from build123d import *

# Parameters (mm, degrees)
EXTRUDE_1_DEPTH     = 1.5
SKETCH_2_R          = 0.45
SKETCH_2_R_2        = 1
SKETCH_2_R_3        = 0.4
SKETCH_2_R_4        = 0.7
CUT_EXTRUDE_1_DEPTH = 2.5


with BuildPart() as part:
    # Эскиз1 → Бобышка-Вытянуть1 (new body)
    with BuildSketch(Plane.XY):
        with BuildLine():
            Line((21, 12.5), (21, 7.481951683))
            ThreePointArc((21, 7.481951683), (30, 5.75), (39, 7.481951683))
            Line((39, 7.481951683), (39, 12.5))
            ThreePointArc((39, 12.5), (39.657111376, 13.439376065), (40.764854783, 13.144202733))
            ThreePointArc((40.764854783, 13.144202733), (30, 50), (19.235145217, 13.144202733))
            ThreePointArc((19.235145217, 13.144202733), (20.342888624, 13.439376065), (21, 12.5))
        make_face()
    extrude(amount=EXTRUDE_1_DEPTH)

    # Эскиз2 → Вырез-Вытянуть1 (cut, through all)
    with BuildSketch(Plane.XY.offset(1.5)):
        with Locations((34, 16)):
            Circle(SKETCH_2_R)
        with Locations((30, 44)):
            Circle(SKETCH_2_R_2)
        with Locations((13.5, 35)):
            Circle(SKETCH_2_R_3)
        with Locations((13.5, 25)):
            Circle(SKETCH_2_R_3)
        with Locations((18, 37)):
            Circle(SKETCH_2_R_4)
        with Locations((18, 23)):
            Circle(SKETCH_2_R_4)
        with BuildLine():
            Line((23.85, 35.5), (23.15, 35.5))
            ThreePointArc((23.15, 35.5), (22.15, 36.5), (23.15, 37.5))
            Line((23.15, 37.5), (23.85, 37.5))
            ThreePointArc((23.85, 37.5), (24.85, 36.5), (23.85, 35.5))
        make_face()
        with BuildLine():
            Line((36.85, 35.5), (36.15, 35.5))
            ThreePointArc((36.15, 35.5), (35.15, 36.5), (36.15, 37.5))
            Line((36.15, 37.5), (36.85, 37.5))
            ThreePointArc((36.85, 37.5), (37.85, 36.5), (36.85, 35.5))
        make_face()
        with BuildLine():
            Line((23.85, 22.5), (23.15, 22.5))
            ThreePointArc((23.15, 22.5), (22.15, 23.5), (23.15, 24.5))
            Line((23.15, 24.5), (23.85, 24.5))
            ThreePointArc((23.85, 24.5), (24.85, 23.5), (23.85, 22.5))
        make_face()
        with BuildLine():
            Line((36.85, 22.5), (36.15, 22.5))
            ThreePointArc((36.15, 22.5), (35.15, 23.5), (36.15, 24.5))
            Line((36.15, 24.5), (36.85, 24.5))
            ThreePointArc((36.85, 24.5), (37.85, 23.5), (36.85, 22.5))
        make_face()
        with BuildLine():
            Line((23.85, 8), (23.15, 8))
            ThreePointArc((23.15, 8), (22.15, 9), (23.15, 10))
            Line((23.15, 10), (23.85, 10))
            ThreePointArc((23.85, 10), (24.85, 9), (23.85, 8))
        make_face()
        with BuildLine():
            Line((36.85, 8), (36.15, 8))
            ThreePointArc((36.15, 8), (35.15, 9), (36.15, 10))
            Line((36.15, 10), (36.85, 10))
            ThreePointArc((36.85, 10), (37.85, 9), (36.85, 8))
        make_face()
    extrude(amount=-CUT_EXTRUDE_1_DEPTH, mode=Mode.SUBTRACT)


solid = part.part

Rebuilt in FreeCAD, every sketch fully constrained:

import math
import FreeCAD as App
import Part
import Sketcher

V = App.Vector

doc = App.newDocument("Part")
params = doc.addObject("Spreadsheet::Sheet", "Params")
for row, (alias, value) in enumerate([
    ("sketch1_radius", "1 mm"),
    ("sketch1_radius2", "20 mm"),
    ("sketch1_radius3", "24.25 mm"),
    ("pad1_length", "1.5 mm"),
    ("sketch2_diameter", "2 mm"),
    ("sketch2_diameter2", "0.9 mm"),
    ("sketch2_diameter3", "0.8 mm"),
    ("sketch2_diameter4", "1.4 mm"),
    ("sketch2_width", "0.7 mm"),
], start=1):
    params.set(f"A{row}", alias)
    params.set(f"B{row}", "=" + value)
    params.setAlias(f"B{row}", alias)

body = doc.addObject("PartDesign::Body", "Body")

# Sketch on XY plane
sketch1 = body.newObject("Sketcher::SketchObject", "Sketch")
sketch1.AttachmentSupport = (doc.getObject("XY_Plane"), [""])
sketch1.MapMode = "FlatFace"
sketch1.addGeometry(Part.LineSegment(V(21, 12.5, 0), V(21, 7.5, 0)), False)
sketch1.addGeometry(Part.ArcOfCircle(Part.Circle(V(30, 30, 0), V(0, 0, 1), 24.3), math.radians(-112), math.radians(-68)), False)
sketch1.addGeometry(Part.LineSegment(V(39, 7.5, 0), V(39, 12.5, 0)), False)
sketch1.addGeometry(Part.ArcOfCircle(Part.Circle(V(40, 12.5, 0), V(0, 0, 1), 1), math.radians(40), math.radians(180)), False)
sketch1.addGeometry(Part.ArcOfCircle(Part.Circle(V(30, 30, 0), V(0, 0, 1), 20), math.radians(-57), math.radians(237)), False)
sketch1.addGeometry(Part.ArcOfCircle(Part.Circle(V(20, 12.5, 0), V(0, 0, 1), 1), math.radians(0), math.radians(140)), False)
sketch1.addConstraint(Sketcher.Constraint("Coincident", 0, 2, 1, 1))
sketch1.addConstraint(Sketcher.Constraint("Coincident", 1, 2, 2, 1))
sketch1.addConstraint(Sketcher.Constraint("Tangent", 2, 2, 3, 2))
sketch1.addConstraint(Sketcher.Constraint("Coincident", 3, 1, 4, 1))
sketch1.addConstraint(Sketcher.Constraint("Coincident", 4, 2, 5, 2))
sketch1.addConstraint(Sketcher.Constraint("Tangent", 5, 1, 0, 1))
sketch1.addConstraint(Sketcher.Constraint("Vertical", 0))
sketch1.addConstraint(Sketcher.Constraint("Vertical", 2))
sketch1.addConstraint(Sketcher.Constraint("Coincident", 4, 3, 1, 3))
sketch1.addConstraint(Sketcher.Constraint("Equal", 3, 5))
sketch1.addConstraint(Sketcher.Constraint("Horizontal", 3, 3, 5, 3))
sketch1.addConstraint(Sketcher.Constraint("Horizontal", 0, 2, 1, 2))
sketch1.addConstraint(Sketcher.Constraint("Radius", 3, 1.0))
sketch1.addConstraint(Sketcher.Constraint("Radius", 4, 20.0))
sketch1.addConstraint(Sketcher.Constraint("Radius", 1, 24.25))
sketch1.addConstraint(Sketcher.Constraint("DistanceX", -1, 1, 1, 3, 30.0))
sketch1.addConstraint(Sketcher.Constraint("DistanceY", -1, 1, 1, 3, 30.0))
sketch1.addConstraint(Sketcher.Constraint("DistanceX", -1, 1, 3, 3, 40.0))
sketch1.addConstraint(Sketcher.Constraint("DistanceY", -1, 1, 3, 3, 12.5))
sketch1.setExpression("Constraints[12]", "Params.sketch1_radius")
sketch1.setExpression("Constraints[13]", "Params.sketch1_radius2")
sketch1.setExpression("Constraints[14]", "Params.sketch1_radius3")
pad1 = body.newObject("PartDesign::Pad", "Pad")
pad1.Profile = sketch1
pad1.setExpression("Length", "Params.pad1_length")

# Sketch on XY plane
sketch2 = body.newObject("Sketcher::SketchObject", "Sketch001")
sketch2.AttachmentSupport = (doc.getObject("XY_Plane"), [""])
sketch2.MapMode = "FlatFace"
sketch2.AttachmentOffset = App.Placement(V(0, 0, 1.5), App.Rotation())
sketch2.addGeometry(Part.Circle(V(34, 16, 0), V(0, 0, 1), 0.45), False)
sketch2.addGeometry(Part.Circle(V(30, 44, 0), V(0, 0, 1), 1), False)
sketch2.addGeometry(Part.Circle(V(13.5, 35, 0), V(0, 0, 1), 0.4), False)
sketch2.addGeometry(Part.Circle(V(13.5, 25, 0), V(0, 0, 1), 0.4), False)
sketch2.addGeometry(Part.Circle(V(18, 37, 0), V(0, 0, 1), 0.7), False)
sketch2.addGeometry(Part.Circle(V(18, 23, 0), V(0, 0, 1), 0.7), False)
sketch2.addGeometry(Part.LineSegment(V(23.15, 35.5, 0), V(23.85, 35.5, 0)), False)
sketch2.addGeometry(Part.ArcOfCircle(Part.Circle(V(23.85, 36.5, 0), V(0, 0, 1), 1), math.radians(-90), math.radians(90)), False)
sketch2.addGeometry(Part.LineSegment(V(23.85, 37.5, 0), V(23.15, 37.5, 0)), False)
sketch2.addGeometry(Part.ArcOfCircle(Part.Circle(V(23.15, 36.5, 0), V(0, 0, 1), 1), math.radians(90), math.radians(270)), False)
sketch2.addGeometry(Part.LineSegment(V(36.15, 35.5, 0), V(36.85, 35.5, 0)), False)
sketch2.addGeometry(Part.ArcOfCircle(Part.Circle(V(36.85, 36.5, 0), V(0, 0, 1), 1), math.radians(-90), math.radians(90)), False)
sketch2.addGeometry(Part.LineSegment(V(36.85, 37.5, 0), V(36.15, 37.5, 0)), False)
sketch2.addGeometry(Part.ArcOfCircle(Part.Circle(V(36.15, 36.5, 0), V(0, 0, 1), 1), math.radians(90), math.radians(270)), False)
sketch2.addGeometry(Part.LineSegment(V(23.15, 22.5, 0), V(23.85, 22.5, 0)), False)
sketch2.addGeometry(Part.ArcOfCircle(Part.Circle(V(23.85, 23.5, 0), V(0, 0, 1), 1), math.radians(-90), math.radians(90)), False)
sketch2.addGeometry(Part.LineSegment(V(23.85, 24.5, 0), V(23.15, 24.5, 0)), False)
sketch2.addGeometry(Part.ArcOfCircle(Part.Circle(V(23.15, 23.5, 0), V(0, 0, 1), 1), math.radians(90), math.radians(270)), False)
sketch2.addGeometry(Part.LineSegment(V(36.15, 22.5, 0), V(36.85, 22.5, 0)), False)
sketch2.addGeometry(Part.ArcOfCircle(Part.Circle(V(36.85, 23.5, 0), V(0, 0, 1), 1), math.radians(-90), math.radians(90)), False)
sketch2.addGeometry(Part.LineSegment(V(36.85, 24.5, 0), V(36.15, 24.5, 0)), False)
sketch2.addGeometry(Part.ArcOfCircle(Part.Circle(V(36.15, 23.5, 0), V(0, 0, 1), 1), math.radians(90), math.radians(270)), False)
sketch2.addGeometry(Part.LineSegment(V(23.15, 8, 0), V(23.85, 8, 0)), False)
sketch2.addGeometry(Part.ArcOfCircle(Part.Circle(V(23.85, 9, 0), V(0, 0, 1), 1), math.radians(-90), math.radians(90)), False)
sketch2.addGeometry(Part.LineSegment(V(23.85, 10, 0), V(23.15, 10, 0)), False)
sketch2.addGeometry(Part.ArcOfCircle(Part.Circle(V(23.15, 9, 0), V(0, 0, 1), 1), math.radians(90), math.radians(270)), False)
sketch2.addGeometry(Part.LineSegment(V(36.15, 8, 0), V(36.85, 8, 0)), False)
sketch2.addGeometry(Part.ArcOfCircle(Part.Circle(V(36.85, 9, 0), V(0, 0, 1), 1), math.radians(-90), math.radians(90)), False)
sketch2.addGeometry(Part.LineSegment(V(36.85, 10, 0), V(36.15, 10, 0)), False)
sketch2.addGeometry(Part.ArcOfCircle(Part.Circle(V(36.15, 9, 0), V(0, 0, 1), 1), math.radians(90), math.radians(270)), False)
sketch2.addConstraint(Sketcher.Constraint("Tangent", 6, 2, 7, 1))
sketch2.addConstraint(Sketcher.Constraint("Tangent", 7, 2, 8, 1))
sketch2.addConstraint(Sketcher.Constraint("Tangent", 8, 2, 9, 1))
sketch2.addConstraint(Sketcher.Constraint("Tangent", 9, 2, 6, 1))
sketch2.addConstraint(Sketcher.Constraint("Tangent", 10, 2, 11, 1))
sketch2.addConstraint(Sketcher.Constraint("Tangent", 11, 2, 12, 1))
sketch2.addConstraint(Sketcher.Constraint("Tangent", 12, 2, 13, 1))
sketch2.addConstraint(Sketcher.Constraint("Tangent", 13, 2, 10, 1))
sketch2.addConstraint(Sketcher.Constraint("Tangent", 14, 2, 15, 1))
sketch2.addConstraint(Sketcher.Constraint("Tangent", 15, 2, 16, 1))
sketch2.addConstraint(Sketcher.Constraint("Tangent", 16, 2, 17, 1))
sketch2.addConstraint(Sketcher.Constraint("Tangent", 17, 2, 14, 1))
sketch2.addConstraint(Sketcher.Constraint("Tangent", 18, 2, 19, 1))
sketch2.addConstraint(Sketcher.Constraint("Tangent", 19, 2, 20, 1))
sketch2.addConstraint(Sketcher.Constraint("Tangent", 20, 2, 21, 1))
sketch2.addConstraint(Sketcher.Constraint("Tangent", 21, 2, 18, 1))
sketch2.addConstraint(Sketcher.Constraint("Tangent", 22, 2, 23, 1))
sketch2.addConstraint(Sketcher.Constraint("Tangent", 23, 2, 24, 1))
sketch2.addConstraint(Sketcher.Constraint("Tangent", 24, 2, 25, 1))
sketch2.addConstraint(Sketcher.Constraint("Tangent", 25, 2, 22, 1))
sketch2.addConstraint(Sketcher.Constraint("Tangent", 26, 2, 27, 1))
sketch2.addConstraint(Sketcher.Constraint("Tangent", 27, 2, 28, 1))
sketch2.addConstraint(Sketcher.Constraint("Tangent", 28, 2, 29, 1))
sketch2.addConstraint(Sketcher.Constraint("Tangent", 29, 2, 26, 1))
sketch2.addConstraint(Sketcher.Constraint("Horizontal", 6))
sketch2.addConstraint(Sketcher.Constraint("Horizontal", 8))
sketch2.addConstraint(Sketcher.Constraint("Horizontal", 10))
sketch2.addConstraint(Sketcher.Constraint("Horizontal", 12))
sketch2.addConstraint(Sketcher.Constraint("Horizontal", 14))
sketch2.addConstraint(Sketcher.Constraint("Horizontal", 16))
sketch2.addConstraint(Sketcher.Constraint("Horizontal", 18))
sketch2.addConstraint(Sketcher.Constraint("Horizontal", 20))
sketch2.addConstraint(Sketcher.Constraint("Horizontal", 22))
sketch2.addConstraint(Sketcher.Constraint("Horizontal", 24))
sketch2.addConstraint(Sketcher.Constraint("Horizontal", 26))
sketch2.addConstraint(Sketcher.Constraint("Horizontal", 28))
sketch2.addConstraint(Sketcher.Constraint("Equal", 2, 3))
sketch2.addConstraint(Sketcher.Constraint("Equal", 4, 5))
sketch2.addConstraint(Sketcher.Constraint("Equal", 1, 7))
sketch2.addConstraint(Sketcher.Constraint("Equal", 9, 11))
sketch2.addConstraint(Sketcher.Constraint("Equal", 13, 15))
sketch2.addConstraint(Sketcher.Constraint("Equal", 17, 19))
sketch2.addConstraint(Sketcher.Constraint("Equal", 21, 23))
sketch2.addConstraint(Sketcher.Constraint("Equal", 25, 27))
sketch2.addConstraint(Sketcher.Constraint("Horizontal", 9, 3, 11, 3))
sketch2.addConstraint(Sketcher.Constraint("Horizontal", 17, 3, 19, 3))
sketch2.addConstraint(Sketcher.Constraint("Horizontal", 25, 3, 27, 3))
sketch2.addConstraint(Sketcher.Constraint("Vertical", 2, 3, 3, 3))
sketch2.addConstraint(Sketcher.Constraint("Vertical", 4, 3, 5, 3))
sketch2.addConstraint(Sketcher.Constraint("Vertical", 7, 3, 15, 3))
sketch2.addConstraint(Sketcher.Constraint("Vertical", 9, 3, 17, 3))
sketch2.addConstraint(Sketcher.Constraint("Vertical", 11, 3, 19, 3))
sketch2.addConstraint(Sketcher.Constraint("Vertical", 13, 3, 21, 3))
sketch2.addConstraint(Sketcher.Constraint("Vertical", 15, 3, 23, 3))
sketch2.addConstraint(Sketcher.Constraint("Vertical", 17, 3, 25, 3))
sketch2.addConstraint(Sketcher.Constraint("Vertical", 19, 3, 27, 3))
sketch2.addConstraint(Sketcher.Constraint("Vertical", 21, 3, 29, 3))
sketch2.addConstraint(Sketcher.Constraint("Equal", 8, 10))
sketch2.addConstraint(Sketcher.Constraint("Diameter", 1, 2.0))
sketch2.addConstraint(Sketcher.Constraint("Diameter", 0, 0.9))
sketch2.addConstraint(Sketcher.Constraint("Diameter", 2, 0.8))
sketch2.addConstraint(Sketcher.Constraint("Diameter", 4, 1.4))
sketch2.addConstraint(Sketcher.Constraint("DistanceX", 6, 1, 6, 2, 0.7))
sketch2.addConstraint(Sketcher.Constraint("DistanceX", -1, 1, 0, 3, 34.0))
sketch2.addConstraint(Sketcher.Constraint("DistanceY", -1, 1, 0, 3, 16.0))
sketch2.addConstraint(Sketcher.Constraint("DistanceX", -1, 1, 1, 3, 30.0))
sketch2.addConstraint(Sketcher.Constraint("DistanceY", -1, 1, 1, 3, 44.0))
sketch2.addConstraint(Sketcher.Constraint("DistanceY", -1, 1, 2, 3, 35.0))
sketch2.addConstraint(Sketcher.Constraint("DistanceY", -1, 1, 3, 3, 25.0))
sketch2.addConstraint(Sketcher.Constraint("DistanceX", -1, 1, 4, 3, 18.0))
sketch2.addConstraint(Sketcher.Constraint("DistanceY", -1, 1, 4, 3, 37.0))
sketch2.addConstraint(Sketcher.Constraint("DistanceY", -1, 1, 5, 3, 23.0))
sketch2.addConstraint(Sketcher.Constraint("DistanceY", -1, 1, 23, 3, 9.0))
sketch2.addConstraint(Sketcher.Constraint("DistanceX", 7, 3, 11, 3, 13.0))
sketch2.addConstraint(Sketcher.Constraint("DistanceY", 15, 3, 7, 3, 13.0))
sketch2.addConstraint(Sketcher.Constraint("DistanceX", -1, 1, 2, 3, 13.5))
sketch2.addConstraint(Sketcher.Constraint("DistanceY", -1, 1, 7, 3, 36.5))
sketch2.addConstraint(Sketcher.Constraint("DistanceX", -1, 1, 7, 3, 23.85))
sketch2.setExpression("Constraints[58]", "Params.sketch2_diameter")
sketch2.setExpression("Constraints[59]", "Params.sketch2_diameter2")
sketch2.setExpression("Constraints[60]", "Params.sketch2_diameter3")
sketch2.setExpression("Constraints[61]", "Params.sketch2_diameter4")
sketch2.setExpression("Constraints[62]", "Params.sketch2_width")
pocket1 = body.newObject("PartDesign::Pocket", "Pocket")
pocket1.Profile = sketch2
pocket1.Type = "ThroughAll"

doc.recompute()
